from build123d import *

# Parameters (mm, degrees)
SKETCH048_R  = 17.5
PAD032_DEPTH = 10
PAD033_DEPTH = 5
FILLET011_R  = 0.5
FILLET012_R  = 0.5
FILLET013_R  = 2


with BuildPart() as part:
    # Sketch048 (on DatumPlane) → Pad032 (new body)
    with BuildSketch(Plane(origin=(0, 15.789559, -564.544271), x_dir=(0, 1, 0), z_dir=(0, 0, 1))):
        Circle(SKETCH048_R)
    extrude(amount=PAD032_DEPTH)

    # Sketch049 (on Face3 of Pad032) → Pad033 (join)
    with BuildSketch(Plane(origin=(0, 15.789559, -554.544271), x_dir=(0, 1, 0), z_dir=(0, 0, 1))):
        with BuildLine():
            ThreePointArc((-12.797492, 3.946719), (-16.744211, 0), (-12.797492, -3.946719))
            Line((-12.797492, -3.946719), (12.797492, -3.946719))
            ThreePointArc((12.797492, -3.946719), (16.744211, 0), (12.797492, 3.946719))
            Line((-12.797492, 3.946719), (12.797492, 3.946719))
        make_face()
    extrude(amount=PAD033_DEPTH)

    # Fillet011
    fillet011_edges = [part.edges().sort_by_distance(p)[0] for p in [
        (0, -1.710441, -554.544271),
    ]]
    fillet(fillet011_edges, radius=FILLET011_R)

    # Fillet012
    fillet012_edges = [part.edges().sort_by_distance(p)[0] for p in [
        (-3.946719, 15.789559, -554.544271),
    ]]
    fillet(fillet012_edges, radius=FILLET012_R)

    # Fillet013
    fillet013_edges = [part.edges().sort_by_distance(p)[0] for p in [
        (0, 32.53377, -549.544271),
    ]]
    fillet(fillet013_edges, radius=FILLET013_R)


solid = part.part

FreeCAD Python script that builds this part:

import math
import FreeCAD as App
import Part
import Sketcher
Q = App.Units.Quantity


def edges_at(feature, points):
    """Names of the edges that pass closest to the given points."""
    edges = feature.Shape.Edges
    near = lambda p: min(range(len(edges)), key=lambda i: edges[i].distToShape(Part.Vertex(*p))[0])
    return sorted({f"Edge{near(p) + 1}" for p in points})

doc = App.newDocument("Part")
body = doc.addObject("PartDesign::Body", "Body")

# Sketch on XY plane
sketch1 = body.newObject("Sketcher::SketchObject", "Sketch")
sketch1.AttachmentSupport = (doc.getObject("XY_Plane"), [""])
sketch1.MapMode = "FlatFace"
sketch1.AttachmentOffset = App.Placement(App.Vector(0, 0, -564.544271), App.Rotation())
sketch1.addGeometry(Part.Circle(App.Vector(0, 16, 0), App.Vector(0, 0, 1), 18), False)
sketch1.addConstraint([
    Sketcher.Constraint("PointOnObject", 0, 3, -2),
    Sketcher.Constraint("Diameter", 0, Q("35 mm")),
    Sketcher.Constraint("DistanceY", -1, 1, 0, 3, Q("15.789559 mm")),
])
pad1 = body.newObject("PartDesign::Pad", "Pad")
pad1.Profile = sketch1
pad1.Length = 10

# Sketch on XY plane
sketch2 = body.newObject("Sketcher::SketchObject", "Sketch001")
sketch2.AttachmentSupport = (doc.getObject("XY_Plane"), [""])
sketch2.MapMode = "FlatFace"
sketch2.AttachmentOffset = App.Placement(App.Vector(0, 0, -554.544271), App.Rotation())
sketch2.addGeometry([
    Part.ArcOfCircle(Part.Circle(App.Vector(0, 3, 0), App.Vector(0, 0, 1), 3.9), math.radians(180), math.radians(360)),
    Part.LineSegment(App.Vector(3.9, 3, 0), App.Vector(3.9, 28.6, 0)),
    Part.ArcOfCircle(Part.Circle(App.Vector(0, 28.6, 0), App.Vector(0, 0, 1), 3.9), math.radians(0), math.radians(180)),
    Part.LineSegment(App.Vector(-3.9, 28.6, 0), App.Vector(-3.9, 3, 0)),
], False)
sketch2.addConstraint([
    Sketcher.Constraint("Tangent", 0, 2, 1, 1),
    Sketcher.Constraint("Tangent", 1, 2, 2, 1),
    Sketcher.Constraint("Tangent", 2, 2, 3, 1),
    Sketcher.Constraint("Tangent", 3, 2, 0, 1),
    Sketcher.Constraint("Vertical", 1),
    Sketcher.Constraint("Vertical", 3),
    Sketcher.Constraint("PointOnObject", 0, 3, -2),
    Sketcher.Constraint("Radius", 0, Q("3.946719 mm")),
    Sketcher.Constraint("DistanceY", 1, 1, 1, 2, Q("25.594984 mm")),
    Sketcher.Constraint("DistanceY", -1, 1, 2, 3, Q("28.587051 mm")),
])
pad2 = body.newObject("PartDesign::Pad", "Pad001")
pad2.Profile = sketch2
pad2.Length = 5
doc.recompute()

fillet = body.newObject("PartDesign::Fillet", "Fillet")
fillet.Base = (pad2, edges_at(pad2, [(0, -1.71, -554.544)]))
fillet.Radius = 0.5
doc.recompute()

fillet2 = body.newObject("PartDesign::Fillet", "Fillet001")
fillet2.Base = (fillet, edges_at(fillet, [(-3.947, 15.79, -554.544)]))
fillet2.Radius = 0.5
doc.recompute()

fillet3 = body.newObject("PartDesign::Fillet", "Fillet002")
fillet3.Base = (fillet2, edges_at(fillet2, [(0, 32.534, -549.544)]))
fillet3.Radius = 2

doc.recompute()
